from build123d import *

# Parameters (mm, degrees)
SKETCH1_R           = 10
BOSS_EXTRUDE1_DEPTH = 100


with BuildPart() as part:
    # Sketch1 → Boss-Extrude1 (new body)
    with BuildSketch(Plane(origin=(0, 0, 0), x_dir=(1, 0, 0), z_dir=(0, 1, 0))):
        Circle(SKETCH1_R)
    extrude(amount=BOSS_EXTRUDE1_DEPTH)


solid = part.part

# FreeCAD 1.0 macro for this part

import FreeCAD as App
import Part
import Sketcher

doc = App.newDocument("Part")
body = doc.addObject("PartDesign::Body", "Body")

# Sketch on XZ plane
sketch1 = body.newObject("Sketcher::SketchObject", "Sketch")
sketch1.AttachmentSupport = (doc.getObject("XZ_Plane"), [""])
sketch1.MapMode = "FlatFace"
sketch1.addGeometry(Part.Circle(App.Vector(0, 0, 0), App.Vector(0, 0, 1), 10), False)
sketch1.addConstraint([
    Sketcher.Constraint("Coincident", 0, 3, -1, 1),
    Sketcher.Constraint("Diameter", 0, 20.0),
])
pad1 = body.newObject("PartDesign::Pad", "Pad")
pad1.Profile = sketch1
pad1.Length = 100
pad1.Reversed = True

doc.recompute()
